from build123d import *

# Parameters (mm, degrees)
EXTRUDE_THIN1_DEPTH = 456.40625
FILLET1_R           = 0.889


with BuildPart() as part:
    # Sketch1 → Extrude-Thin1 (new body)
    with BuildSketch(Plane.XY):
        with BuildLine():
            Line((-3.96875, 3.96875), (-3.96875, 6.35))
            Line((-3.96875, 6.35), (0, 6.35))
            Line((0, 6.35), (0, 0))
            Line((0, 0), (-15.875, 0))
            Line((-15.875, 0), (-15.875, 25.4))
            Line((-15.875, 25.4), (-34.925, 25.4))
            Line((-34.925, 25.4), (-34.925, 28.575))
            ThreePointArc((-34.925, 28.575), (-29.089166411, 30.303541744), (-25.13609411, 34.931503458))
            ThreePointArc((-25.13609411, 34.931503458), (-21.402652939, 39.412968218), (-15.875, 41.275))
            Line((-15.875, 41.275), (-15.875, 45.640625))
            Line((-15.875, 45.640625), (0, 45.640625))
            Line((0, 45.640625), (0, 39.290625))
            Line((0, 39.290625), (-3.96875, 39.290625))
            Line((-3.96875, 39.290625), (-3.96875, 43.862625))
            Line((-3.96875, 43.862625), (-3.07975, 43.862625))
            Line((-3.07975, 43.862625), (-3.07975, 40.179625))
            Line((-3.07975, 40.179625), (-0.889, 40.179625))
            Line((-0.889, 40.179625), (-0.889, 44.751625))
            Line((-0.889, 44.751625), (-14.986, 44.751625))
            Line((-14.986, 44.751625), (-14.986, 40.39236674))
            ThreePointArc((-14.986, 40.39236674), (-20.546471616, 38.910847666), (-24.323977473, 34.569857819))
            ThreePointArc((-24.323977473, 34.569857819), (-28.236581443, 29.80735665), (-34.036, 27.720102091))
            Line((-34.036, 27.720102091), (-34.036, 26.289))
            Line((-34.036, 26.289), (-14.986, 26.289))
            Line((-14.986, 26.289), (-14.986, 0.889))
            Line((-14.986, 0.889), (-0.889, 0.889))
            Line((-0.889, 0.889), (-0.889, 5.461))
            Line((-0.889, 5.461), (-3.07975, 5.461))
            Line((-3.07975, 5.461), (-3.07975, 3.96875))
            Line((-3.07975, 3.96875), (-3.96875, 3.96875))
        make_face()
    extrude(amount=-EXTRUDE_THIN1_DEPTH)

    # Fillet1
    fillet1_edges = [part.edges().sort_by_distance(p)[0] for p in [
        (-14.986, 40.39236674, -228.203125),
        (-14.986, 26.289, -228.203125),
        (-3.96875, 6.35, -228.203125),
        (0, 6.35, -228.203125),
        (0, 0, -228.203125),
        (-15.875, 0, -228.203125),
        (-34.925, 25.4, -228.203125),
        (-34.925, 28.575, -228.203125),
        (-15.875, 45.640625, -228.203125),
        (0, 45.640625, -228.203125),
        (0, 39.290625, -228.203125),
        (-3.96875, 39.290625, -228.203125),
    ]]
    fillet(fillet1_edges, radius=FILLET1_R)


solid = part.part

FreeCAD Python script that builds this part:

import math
import FreeCAD as App
import Part
import Sketcher
from FreeCAD import Vector
Q = App.Units.Quantity


def edges_at(feature, points):
    """Names of the edges that pass closest to the given points."""
    edges = feature.Shape.Edges
    near = lambda p: min(range(len(edges)), key=lambda i: edges[i].distToShape(Part.Vertex(*p))[0])
    return sorted({f"Edge{near(p) + 1}" for p in points})

doc = App.newDocument("Part")
body = doc.addObject("PartDesign::Body", "Body")

# Sketch on XY plane
sketch1 = doc.addObject("Sketcher::SketchObject", "Sketch")
body.addObject(sketch1)
sketch1.AttachmentSupport = (doc.XY_Plane, [""])
sketch1.MapMode = "FlatFace"
sketch1.addGeometry([
    Part.LineSegment(Vector(-3.96875, 6.35, 0), Vector(-3.96875, 3.96875, 0)),  # 0
    Part.LineSegment(Vector(-3.96875, 3.96875, 0), Vector(-3.07975, 3.96875, 0)),  # 1
    Part.LineSegment(Vector(-3.07975, 3.96875, 0), Vector(-3.07975, 5.461, 0)),  # 2
    Part.LineSegment(Vector(-3.07975, 5.461, 0), Vector(-0.889, 5.461, 0)),  # 3
    Part.LineSegment(Vector(-0.889, 5.461, 0), Vector(-0.889, 0.889, 0)),  # 4
    Part.LineSegment(Vector(-0.889, 0.889, 0), Vector(-14.986, 0.889, 0)),  # 5
    Part.LineSegment(Vector(-14.986, 0.889, 0), Vector(-14.986, 26.289, 0)),  # 6
    Part.LineSegment(Vector(-14.986, 26.289, 0), Vector(-34.036, 26.289, 0)),  # 7
    Part.LineSegment(Vector(-34.036, 26.289, 0), Vector(-34.036, 27.720102, 0)),  # 8
    Part.ArcOfCircle(Part.Circle(Vector(-34.925, 39.290625, 0), Vector(0, 0, 1), 11.604625), math.radians(-85.606415), math.radians(-24.004005)),  # 9
    Part.ArcOfCircle(Part.Circle(Vector(-15.347188, 30.572382, 0), Vector(0, 0, 1), 9.826625), math.radians(87.893557), math.radians(155.995995)),  # 10
    Part.LineSegment(Vector(-14.986, 40.392367, 0), Vector(-14.986, 44.751625, 0)),  # 11
    Part.LineSegment(Vector(-14.986, 44.751625, 0), Vector(-0.889, 44.751625, 0)),  # 12
    Part.LineSegment(Vector(-0.889, 44.751625, 0), Vector(-0.889, 40.179625, 0)),  # 13
    Part.LineSegment(Vector(-0.889, 40.179625, 0), Vector(-3.07975, 40.179625, 0)),  # 14
    Part.LineSegment(Vector(-3.07975, 40.179625, 0), Vector(-3.07975, 43.862625, 0)),  # 15
    Part.LineSegment(Vector(-3.07975, 43.862625, 0), Vector(-3.96875, 43.862625, 0)),  # 16
    Part.LineSegment(Vector(-3.96875, 43.862625, 0), Vector(-3.96875, 39.290625, 0)),  # 17
    Part.LineSegment(Vector(-3.96875, 39.290625, 0), Vector(0, 39.290625, 0)),  # 18
    Part.LineSegment(Vector(0, 39.290625, 0), Vector(0, 45.640625, 0)),  # 19
    Part.LineSegment(Vector(0, 45.640625, 0), Vector(-15.875, 45.640625, 0)),  # 20
    Part.LineSegment(Vector(-15.875, 45.640625, 0), Vector(-15.875, 41.275, 0)),  # 21
    Part.ArcOfCircle(Part.Circle(Vector(-15.347188, 30.572382, 0), Vector(0, 0, 1), 10.715625), math.radians(92.823319), math.radians(155.995995)),  # 22
    Part.ArcOfCircle(Part.Circle(Vector(-34.925, 39.290625, 0), Vector(0, 0, 1), 10.715625), math.radians(-90), math.radians(-24.004005)),  # 23
    Part.LineSegment(Vector(-34.925, 28.575, 0), Vector(-34.925, 25.4, 0)),  # 24
    Part.LineSegment(Vector(-34.925, 25.4, 0), Vector(-15.875, 25.4, 0)),  # 25
    Part.LineSegment(Vector(-15.875, 25.4, 0), Vector(-15.875, 0, 0)),  # 26
    Part.LineSegment(Vector(-15.875, 0, 0), Vector(0, 0, 0)),  # 27
    Part.LineSegment(Vector(0, 0, 0), Vector(0, 6.35, 0)),  # 28
    Part.LineSegment(Vector(0, 6.35, 0), Vector(-3.96875, 6.35, 0)),  # 29
], False)
sketch1.addConstraint([
    Sketcher.Constraint("Coincident", 0, 2, 1, 1),
    Sketcher.Constraint("Coincident", 1, 2, 2, 1),
    Sketcher.Constraint("Coincident", 2, 2, 3, 1),
    Sketcher.Constraint("Coincident", 3, 2, 4, 1),
    Sketcher.Constraint("Coincident", 4, 2, 5, 1),
    Sketcher.Constraint("Coincident", 5, 2, 6, 1),
    Sketcher.Constraint("Coincident", 6, 2, 7, 1),
    Sketcher.Constraint("Coincident", 7, 2, 8, 1),
    Sketcher.Constraint("Coincident", 8, 2, 9, 1),
    Sketcher.Constraint("Tangent", 9, 2, 10, 2),
    Sketcher.Constraint("Coincident", 10, 1, 11, 1),
    Sketcher.Constraint("Coincident", 11, 2, 12, 1),
    Sketcher.Constraint("Coincident", 12, 2, 13, 1),
    Sketcher.Constraint("Coincident", 13, 2, 14, 1),
    Sketcher.Constraint("Coincident", 14, 2, 15, 1),
    Sketcher.Constraint("Coincident", 15, 2, 16, 1),
    Sketcher.Constraint("Coincident", 16, 2, 17, 1),
    Sketcher.Constraint("Coincident", 17, 2, 18, 1),
    Sketcher.Constraint("Coincident", 18, 2, 19, 1),
    Sketcher.Constraint("Coincident", 19, 2, 20, 1),
    Sketcher.Constraint("Coincident", 20, 2, 21, 1),
    Sketcher.Constraint("Coincident", 21, 2, 22, 1),
    Sketcher.Constraint("Tangent", 22, 2, 23, 2),
    Sketcher.Constraint("Coincident", 23, 1, 24, 1),
    Sketcher.Constraint("Coincident", 24, 2, 25, 1),
    Sketcher.Constraint("Coincident", 25, 2, 26, 1),
    Sketcher.Constraint("Coincident", 26, 2, 27, 1),
    Sketcher.Constraint("Coincident", 27, 2, 28, 1),
    Sketcher.Constraint("Coincident", 28, 2, 29, 1),
    Sketcher.Constraint("Coincident", 29, 2, 0, 1),
    Sketcher.Constraint("Vertical", 0),
    Sketcher.Constraint("Horizontal", 1),
    Sketcher.Constraint("Vertical", 2),
    Sketcher.Constraint("Horizontal", 3),
    Sketcher.Constraint("Vertical", 4),
    Sketcher.Constraint("Horizontal", 5),
    Sketcher.Constraint("Vertical", 6),
    Sketcher.Constraint("Horizontal", 7),
    Sketcher.Constraint("Vertical", 8),
    Sketcher.Constraint("Vertical", 11),
    Sketcher.Constraint("Horizontal", 12),
    Sketcher.Constraint("Vertical", 13),
    Sketcher.Constraint("Horizontal", 14),
    Sketcher.Constraint("Vertical", 15),
    Sketcher.Constraint("Horizontal", 16),
    Sketcher.Constraint("Vertical", 17),
    Sketcher.Constraint("Horizontal", 18),
    Sketcher.Constraint("Vertical", 19),
    Sketcher.Constraint("Horizontal", 20),
    Sketcher.Constraint("Vertical", 21),
    Sketcher.Constraint("Vertical", 24),
    Sketcher.Constraint("Horizontal", 25),
    Sketcher.Constraint("Vertical", 26),
    Sketcher.Constraint("Horizontal", 27),
    Sketcher.Constraint("Vertical", 28),
    Sketcher.Constraint("Horizontal", 29),
    Sketcher.Constraint("Coincident", 27, 2, -1, 1),
    Sketcher.Constraint("Coincident", 22, 3, 10, 3),
    Sketcher.Constraint("Coincident", 23, 3, 9, 3),
    Sketcher.Constraint("Equal", 22, 23),
    Sketcher.Constraint("PointOnObject", 18, 2, -2),
    Sketcher.Constraint("Horizontal", 23, 3, 17, 2),
    Sketcher.Constraint("Vertical", 6, 2, 10, 1),
    Sketcher.Constraint("Vertical", 4, 2, 12, 2),
    Sketcher.Constraint("Vertical", 2, 2, 14, 2),
    Sketcher.Constraint("Vertical", 0, 2, 16, 2),
    Sketcher.Constraint("Vertical", 9, 3, 23, 1),
    Sketcher.Constraint("Vertical", 21, 2, 25, 2),
    Sketcher.Constraint("Equal", 7, 25),
    Sketcher.Constraint("Equal", 4, 13),
    Sketcher.Constraint("Equal", 13, 17),
    Sketcher.Constraint("Equal", 6, 26),
    Sketcher.Constraint("Equal", 19, 28),
    Sketcher.Constraint("DistanceY", 6, 1, 6, 2, Q("1 in")),
    Sketcher.Constraint("Radius", 22, Q("0.421875 in")),
    Sketcher.Constraint("DistanceX", 7, 2, 7, 1, Q("0.75 in")),
    Sketcher.Constraint("DistanceY", 4, 2, 4, 1, Q("0.18 in")),
    Sketcher.Constraint("DistanceY", 19, 1, 19, 2, Q("0.25 in")),
    Sketcher.Constraint("DistanceX", 1, 1, 1, 2, Q("0.035 in")),
    Sketcher.Constraint("DistanceX", 5, 2, 5, 1, Q("0.555 in")),
    Sketcher.Constraint("DistanceX", 18, 1, 18, 2, Q("0.15625 in")),
    Sketcher.Constraint("DistanceX", 20, 2, 20, 1, Q("0.625 in")),
    Sketcher.Constraint("DistanceY", 0, 2, 0, 1, Q("0.09375 in")),
    Sketcher.Constraint("DistanceY", 15, 1, 15, 2, Q("0.145 in")),
    Sketcher.Constraint("DistanceY", 21, 2, 21, 1, Q("0.171875 in")),
    Sketcher.Constraint("DistanceY", 24, 2, 24, 1, Q("0.125 in")),
    Sketcher.Constraint("DistanceX", 5, 2, -1, 1, Q("0.59 in")),
    Sketcher.Constraint("DistanceY", 7, 2, 23, 1, Q("0.09 in")),
    Sketcher.Constraint("Radius", 9, Q("11.604625 mm")),
])
pad1 = doc.addObject("PartDesign::Pad", "Pad")
body.addObject(pad1)
pad1.Profile = sketch1
pad1.Length = Q("17.96875 in")
pad1.Reversed = True
doc.recompute()

fillet = doc.addObject("PartDesign::Fillet", "Fillet")
body.addObject(fillet)
fillet.Base = (pad1, edges_at(pad1, [
    (-14.986, 40.392, -228.203),
    (-14.986, 26.289, -228.203),
    (-3.969, 6.35, -228.203),
    (0, 6.35, -228.203),
    (0, 0, -228.203),
    (-15.875, 0, -228.203),
    (-34.925, 25.4, -228.203),
    (-34.925, 28.575, -228.203),
    (-15.875, 45.641, -228.203),
    (0, 45.641, -228.203),
    (0, 39.291, -228.203),
    (-3.969, 39.291, -228.203),
]))
fillet.Radius = Q("0.035 in")

doc.recompute()
